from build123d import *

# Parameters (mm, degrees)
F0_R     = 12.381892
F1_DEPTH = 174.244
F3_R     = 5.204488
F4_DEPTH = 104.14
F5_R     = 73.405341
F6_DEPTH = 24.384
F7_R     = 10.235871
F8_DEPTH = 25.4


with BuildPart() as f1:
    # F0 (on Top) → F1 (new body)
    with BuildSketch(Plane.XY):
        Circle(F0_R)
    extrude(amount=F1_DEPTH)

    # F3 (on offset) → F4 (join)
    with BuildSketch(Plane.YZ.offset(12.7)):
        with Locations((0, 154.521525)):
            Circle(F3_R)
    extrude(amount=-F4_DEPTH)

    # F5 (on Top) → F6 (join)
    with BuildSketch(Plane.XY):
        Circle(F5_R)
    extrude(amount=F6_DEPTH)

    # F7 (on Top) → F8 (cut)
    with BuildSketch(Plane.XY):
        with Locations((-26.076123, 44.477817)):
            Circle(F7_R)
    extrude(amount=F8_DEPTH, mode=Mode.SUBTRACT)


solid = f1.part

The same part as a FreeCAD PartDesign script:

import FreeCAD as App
import Part
import Sketcher
from FreeCAD import Vector
Q = App.Units.Quantity

doc = App.newDocument("Part")
body = doc.addObject("PartDesign::Body", "Body")

# Sketch on XY plane
sketch1 = body.newObject("Sketcher::SketchObject", "Sketch")
sketch1.AttachmentSupport = (doc.getObject("XY_Plane"), [""])
sketch1.MapMode = "FlatFace"
sketch1.addGeometry(Part.Circle(Vector(0, 0, 0), Vector(0, 0, 1), 12.381892), False)
sketch1.addConstraint([
    Sketcher.Constraint("Coincident", 0, 3, -1, 1),
    Sketcher.Constraint("Diameter", 0, 24.763784),
])
pad1 = body.newObject("PartDesign::Pad", "Pad")
pad1.Profile = sketch1
pad1.Length = Q("6.86 in")

# Sketch on YZ plane
sketch2 = body.newObject("Sketcher::SketchObject", "Sketch001")
sketch2.AttachmentSupport = (doc.getObject("YZ_Plane"), [""])
sketch2.MapMode = "FlatFace"
sketch2.AttachmentOffset = App.Placement(Vector(0, 0, 0.5 * 25.4), App.Rotation())
sketch2.addGeometry(Part.Circle(Vector(0, 154.521525, 0), Vector(0, 0, 1), 5.204488), False)
sketch2.addConstraint([
    Sketcher.Constraint("PointOnObject", 0, 3, -2),
    Sketcher.Constraint("Diameter", 0, 10.408976),
    Sketcher.Constraint("DistanceY", -1, 1, 0, 3, 154.521525),
])
pad2 = body.newObject("PartDesign::Pad", "Pad001")
pad2.Profile = sketch2
pad2.Length = Q("4.1 in")
pad2.Reversed = True

# Sketch on XY plane
sketch3 = body.newObject("Sketcher::SketchObject", "Sketch002")
sketch3.AttachmentSupport = (doc.getObject("XY_Plane"), [""])
sketch3.MapMode = "FlatFace"
sketch3.addGeometry(Part.Circle(Vector(0, 0, 0), Vector(0, 0, 1), 73.405341), False)
sketch3.addConstraint([
    Sketcher.Constraint("Coincident", 0, 3, -1, 1),
    Sketcher.Constraint("Diameter", 0, 146.810682),
])
pad3 = body.newObject("PartDesign::Pad", "Pad002")
pad3.Profile = sketch3
pad3.Length = Q("0.96 in")

# Sketch on XY plane
sketch4 = body.newObject("Sketcher::SketchObject", "Sketch003")
sketch4.AttachmentSupport = (doc.getObject("XY_Plane"), [""])
sketch4.MapMode = "FlatFace"
sketch4.addGeometry(Part.Circle(Vector(-26.076123, 44.477817, 0), Vector(0, 0, 1), 10.235871), False)
sketch4.addConstraint([
    Sketcher.Constraint("Diameter", 0, 20.471742),
    Sketcher.Constraint("DistanceX", 0, 3, -1, 1, 26.076123),
    Sketcher.Constraint("DistanceY", -1, 1, 0, 3, 44.477817),
])
pocket1 = body.newObject("PartDesign::Pocket", "Pocket")
pocket1.Profile = sketch4
pocket1.Length = Q("1 in")
pocket1.Reversed = True

doc.recompute()
